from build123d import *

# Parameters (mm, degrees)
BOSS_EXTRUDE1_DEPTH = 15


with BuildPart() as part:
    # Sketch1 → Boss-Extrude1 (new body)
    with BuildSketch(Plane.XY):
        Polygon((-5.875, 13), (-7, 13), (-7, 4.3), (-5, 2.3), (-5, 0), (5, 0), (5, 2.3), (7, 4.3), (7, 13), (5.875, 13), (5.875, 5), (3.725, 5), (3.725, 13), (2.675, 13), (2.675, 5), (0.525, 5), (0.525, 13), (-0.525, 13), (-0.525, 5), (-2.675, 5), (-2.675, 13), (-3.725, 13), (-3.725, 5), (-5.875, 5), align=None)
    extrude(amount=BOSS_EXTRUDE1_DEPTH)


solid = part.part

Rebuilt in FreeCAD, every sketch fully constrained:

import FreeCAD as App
import Part
import Sketcher
Q = App.Units.Quantity

doc = App.newDocument("Part")
body = doc.addObject("PartDesign::Body", "Body")

# Sketch on XY plane
sketch1 = body.newObject("Sketcher::SketchObject", "Sketch")
sketch1.AttachmentSupport = (doc.getObject("XY_Plane"), [""])
sketch1.MapMode = "FlatFace"
sketch1.addGeometry(Part.LineSegment(App.Vector(-5.875, 13, 0), App.Vector(-7, 13, 0)), False)
sketch1.addGeometry(Part.LineSegment(App.Vector(-7, 13, 0), App.Vector(-7, 4.3, 0)), False)
sketch1.addGeometry(Part.LineSegment(App.Vector(-7, 4.3, 0), App.Vector(-5, 2.3, 0)), False)
sketch1.addGeometry(Part.LineSegment(App.Vector(-5, 2.3, 0), App.Vector(-5, 0, 0)), False)
sketch1.addGeometry(Part.LineSegment(App.Vector(-5, 0, 0), App.Vector(5, 0, 0)), False)
sketch1.addGeometry(Part.LineSegment(App.Vector(5, 0, 0), App.Vector(5, 2.3, 0)), False)
sketch1.addGeometry(Part.LineSegment(App.Vector(5, 2.3, 0), App.Vector(7, 4.3, 0)), False)
sketch1.addGeometry(Part.LineSegment(App.Vector(7, 4.3, 0), App.Vector(7, 13, 0)), False)
sketch1.addGeometry(Part.LineSegment(App.Vector(7, 13, 0), App.Vector(5.875, 13, 0)), False)
sketch1.addGeometry(Part.LineSegment(App.Vector(5.875, 13, 0), App.Vector(5.875, 5, 0)), False)
sketch1.addGeometry(Part.LineSegment(App.Vector(5.875, 5, 0), App.Vector(3.725, 5, 0)), False)
sketch1.addGeometry(Part.LineSegment(App.Vector(3.725, 5, 0), App.Vector(3.725, 13, 0)), False)
sketch1.addGeometry(Part.LineSegment(App.Vector(3.725, 13, 0), App.Vector(2.675, 13, 0)), False)
sketch1.addGeometry(Part.LineSegment(App.Vector(2.675, 13, 0), App.Vector(2.675, 5, 0)), False)
sketch1.addGeometry(Part.LineSegment(App.Vector(2.675, 5, 0), App.Vector(0.525, 5, 0)), False)
sketch1.addGeometry(Part.LineSegment(App.Vector(0.525, 5, 0), App.Vector(0.525, 13, 0)), False)
sketch1.addGeometry(Part.LineSegment(App.Vector(0.525, 13, 0), App.Vector(-0.525, 13, 0)), False)
sketch1.addGeometry(Part.LineSegment(App.Vector(-0.525, 13, 0), App.Vector(-0.525, 5, 0)), False)
sketch1.addGeometry(Part.LineSegment(App.Vector(-0.525, 5, 0), App.Vector(-2.675, 5, 0)), False)
sketch1.addGeometry(Part.LineSegment(App.Vector(-2.675, 5, 0), App.Vector(-2.675, 13, 0)), False)
sketch1.addGeometry(Part.LineSegment(App.Vector(-2.675, 13, 0), App.Vector(-3.725, 13, 0)), False)
sketch1.addGeometry(Part.LineSegment(App.Vector(-3.725, 13, 0), App.Vector(-3.725, 5, 0)), False)
sketch1.addGeometry(Part.LineSegment(App.Vector(-3.725, 5, 0), App.Vector(-5.875, 5, 0)), False)
sketch1.addGeometry(Part.LineSegment(App.Vector(-5.875, 5, 0), App.Vector(-5.875, 13, 0)), False)
sketch1.addConstraint(Sketcher.Constraint("Coincident", 0, 2, 1, 1))
sketch1.addConstraint(Sketcher.Constraint("Coincident", 1, 2, 2, 1))
sketch1.addConstraint(Sketcher.Constraint("Coincident", 2, 2, 3, 1))
sketch1.addConstraint(Sketcher.Constraint("Coincident", 3, 2, 4, 1))
sketch1.addConstraint(Sketcher.Constraint("Coincident", 4, 2, 5, 1))
sketch1.addConstraint(Sketcher.Constraint("Coincident", 5, 2, 6, 1))
sketch1.addConstraint(Sketcher.Constraint("Coincident", 6, 2, 7, 1))
sketch1.addConstraint(Sketcher.Constraint("Coincident", 7, 2, 8, 1))
sketch1.addConstraint(Sketcher.Constraint("Coincident", 8, 2, 9, 1))
sketch1.addConstraint(Sketcher.Constraint("Coincident", 9, 2, 10, 1))
sketch1.addConstraint(Sketcher.Constraint("Coincident", 10, 2, 11, 1))
sketch1.addConstraint(Sketcher.Constraint("Coincident", 11, 2, 12, 1))
sketch1.addConstraint(Sketcher.Constraint("Coincident", 12, 2, 13, 1))
sketch1.addConstraint(Sketcher.Constraint("Coincident", 13, 2, 14, 1))
sketch1.addConstraint(Sketcher.Constraint("Coincident", 14, 2, 15, 1))
sketch1.addConstraint(Sketcher.Constraint("Coincident", 15, 2, 16, 1))
sketch1.addConstraint(Sketcher.Constraint("Coincident", 16, 2, 17, 1))
sketch1.addConstraint(Sketcher.Constraint("Coincident", 17, 2, 18, 1))
sketch1.addConstraint(Sketcher.Constraint("Coincident", 18, 2, 19, 1))
sketch1.addConstraint(Sketcher.Constraint("Coincident", 19, 2, 20, 1))
sketch1.addConstraint(Sketcher.Constraint("Coincident", 20, 2, 21, 1))
sketch1.addConstraint(Sketcher.Constraint("Coincident", 21, 2, 22, 1))
sketch1.addConstraint(Sketcher.Constraint("Coincident", 22, 2, 23, 1))
sketch1.addConstraint(Sketcher.Constraint("Coincident", 23, 2, 0, 1))
sketch1.addConstraint(Sketcher.Constraint("Horizontal", 0))
sketch1.addConstraint(Sketcher.Constraint("Vertical", 1))
sketch1.addConstraint(Sketcher.Constraint("Vertical", 3))
sketch1.addConstraint(Sketcher.Constraint("Horizontal", 4))
sketch1.addConstraint(Sketcher.Constraint("Vertical", 5))
sketch1.addConstraint(Sketcher.Constraint("Vertical", 7))
sketch1.addConstraint(Sketcher.Constraint("Horizontal", 8))
sketch1.addConstraint(Sketcher.Constraint("Vertical", 9))
sketch1.addConstraint(Sketcher.Constraint("Horizontal", 10))
sketch1.addConstraint(Sketcher.Constraint("Vertical", 11))
sketch1.addConstraint(Sketcher.Constraint("Horizontal", 12))
sketch1.addConstraint(Sketcher.Constraint("Vertical", 13))
sketch1.addConstraint(Sketcher.Constraint("Horizontal", 14))
sketch1.addConstraint(Sketcher.Constraint("Vertical", 15))
sketch1.addConstraint(Sketcher.Constraint("Horizontal", 16))
sketch1.addConstraint(Sketcher.Constraint("Vertical", 17))
sketch1.addConstraint(Sketcher.Constraint("Horizontal", 18))
sketch1.addConstraint(Sketcher.Constraint("Vertical", 19))
sketch1.addConstraint(Sketcher.Constraint("Horizontal", 20))
sketch1.addConstraint(Sketcher.Constraint("Vertical", 21))
sketch1.addConstraint(Sketcher.Constraint("Horizontal", 22))
sketch1.addConstraint(Sketcher.Constraint("Vertical", 23))
sketch1.addConstraint(Sketcher.Constraint("Symmetric", 3, 2, 4, 2, -1, 1))
sketch1.addConstraint(Sketcher.Constraint("Symmetric", 1, 2, 6, 2, -2))
sketch1.addConstraint(Sketcher.Constraint("Symmetric", 14, 2, 17, 2, -2))
sketch1.addConstraint(Sketcher.Constraint("Symmetric", 12, 2, 19, 2, -2))
sketch1.addConstraint(Sketcher.Constraint("Symmetric", 10, 2, 21, 2, -2))
sketch1.addConstraint(Sketcher.Constraint("Symmetric", 8, 2, 23, 2, -2))
sketch1.addConstraint(Sketcher.Constraint("Perpendicular", 2, 6))
sketch1.addConstraint(Sketcher.Constraint("Horizontal", 2, 2, 5, 2))
sketch1.addConstraint(Sketcher.Constraint("Horizontal", 8, 2, 11, 2))
sketch1.addConstraint(Sketcher.Constraint("Horizontal", 10, 2, 13, 2))
sketch1.addConstraint(Sketcher.Constraint("Horizontal", 12, 2, 15, 2))
sketch1.addConstraint(Sketcher.Constraint("Equal", 10, 14))
sketch1.addConstraint(Sketcher.Constraint("Equal", 12, 16))
sketch1.addConstraint(Sketcher.Constraint("DistanceX", 4, 1, 4, 2, Q("10 mm")))
sketch1.addConstraint(Sketcher.Constraint("DistanceY", 9, 2, 9, 1, Q("8 mm")))
sketch1.addConstraint(Sketcher.Constraint("DistanceY", 1, 2, 1, 1, Q("8.7 mm")))
sketch1.addConstraint(Sketcher.Constraint("DistanceY", 3, 2, 3, 1, Q("2.3 mm")))
sketch1.addConstraint(Sketcher.Constraint("DistanceX", 0, 2, -1, 1, Q("7 mm")))
sketch1.addConstraint(Sketcher.Constraint("DistanceX", 10, 2, 10, 1, Q("2.15 mm")))
sketch1.addConstraint(Sketcher.Constraint("DistanceX", 12, 2, 12, 1, Q("1.05 mm")))
pad1 = body.newObject("PartDesign::Pad", "Pad")
pad1.Profile = sketch1
pad1.Length = 15

doc.recompute()
